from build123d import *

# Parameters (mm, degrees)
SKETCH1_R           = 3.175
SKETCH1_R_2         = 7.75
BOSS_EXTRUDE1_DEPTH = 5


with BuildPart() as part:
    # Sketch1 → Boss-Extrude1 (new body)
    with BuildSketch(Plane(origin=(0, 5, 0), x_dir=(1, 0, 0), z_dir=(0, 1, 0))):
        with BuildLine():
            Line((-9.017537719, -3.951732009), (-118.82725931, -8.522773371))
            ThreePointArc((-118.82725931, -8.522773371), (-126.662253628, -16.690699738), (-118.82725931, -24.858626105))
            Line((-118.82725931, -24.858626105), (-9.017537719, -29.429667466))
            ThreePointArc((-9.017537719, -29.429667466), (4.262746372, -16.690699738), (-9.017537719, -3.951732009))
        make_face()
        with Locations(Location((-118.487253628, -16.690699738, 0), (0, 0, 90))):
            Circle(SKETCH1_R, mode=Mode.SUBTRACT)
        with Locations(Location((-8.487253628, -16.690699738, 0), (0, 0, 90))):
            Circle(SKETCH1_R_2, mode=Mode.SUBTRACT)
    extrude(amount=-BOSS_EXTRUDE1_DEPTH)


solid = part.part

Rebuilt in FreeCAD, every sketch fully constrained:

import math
import FreeCAD as App
import Part
import Sketcher
from FreeCAD import Vector

doc = App.newDocument("Part")
body = doc.addObject("PartDesign::Body", "Body")

# Sketch on XZ plane
sketch1 = body.newObject("Sketcher::SketchObject", "Sketch")
sketch1.AttachmentSupport = (doc.getObject("XZ_Plane"), [""])
sketch1.MapMode = "FlatFace"
sketch1.AttachmentOffset = App.Placement(Vector(0, 0, -5), App.Rotation())
sketch1.addGeometry([
    Part.LineSegment(Vector(-9.017538, 3.951732, 0), Vector(-118.827259, 8.522773, 0)),  # 0
    Part.ArcOfCircle(Part.Circle(Vector(-118.487254, 16.6907, 0), Vector(0, 0, 1), 8.175), math.radians(92.383671), math.radians(267.616329)),  # 1
    Part.LineSegment(Vector(-118.827259, 24.858626, 0), Vector(-9.017538, 29.429667, 0)),  # 2
    Part.ArcOfCircle(Part.Circle(Vector(-8.487254, 16.6907, 0), Vector(0, 0, 1), 12.75), math.radians(-92.383671), math.radians(92.383671)),  # 3
    Part.Circle(Vector(-118.487254, 16.6907, 0), Vector(0, 0, 1), 3.175),  # 4
    Part.Circle(Vector(-8.487254, 16.6907, 0), Vector(0, 0, 1), 7.75),  # 5
], False)
sketch1.addConstraint([
    Sketcher.Constraint("Tangent", 0, 2, 1, 2),
    Sketcher.Constraint("Tangent", 1, 1, 2, 1),
    Sketcher.Constraint("Tangent", 2, 2, 3, 2),
    Sketcher.Constraint("Tangent", 3, 1, 0, 1),
    Sketcher.Constraint("Coincident", 4, 3, 1, 3),
    Sketcher.Constraint("Coincident", 5, 3, 3, 3),
    Sketcher.Constraint("Horizontal", 1, 3, 3, 3),
    Sketcher.Constraint("Diameter", 5, 15.5),
    Sketcher.Constraint("Diameter", 4, 6.35),
    Sketcher.Constraint("Radius", 3, 12.75),
    Sketcher.Constraint("Radius", 1, 8.175),
    Sketcher.Constraint("DistanceX", 1, 3, 3, 3, 110.0),
    Sketcher.Constraint("DistanceY", -1, 1, 1, 3, 16.6907),
    Sketcher.Constraint("DistanceX", 0, 2, -1, 1, 118.827259),
])
pad1 = body.newObject("PartDesign::Pad", "Pad")
pad1.Profile = sketch1
pad1.Length = 5

doc.recompute()
